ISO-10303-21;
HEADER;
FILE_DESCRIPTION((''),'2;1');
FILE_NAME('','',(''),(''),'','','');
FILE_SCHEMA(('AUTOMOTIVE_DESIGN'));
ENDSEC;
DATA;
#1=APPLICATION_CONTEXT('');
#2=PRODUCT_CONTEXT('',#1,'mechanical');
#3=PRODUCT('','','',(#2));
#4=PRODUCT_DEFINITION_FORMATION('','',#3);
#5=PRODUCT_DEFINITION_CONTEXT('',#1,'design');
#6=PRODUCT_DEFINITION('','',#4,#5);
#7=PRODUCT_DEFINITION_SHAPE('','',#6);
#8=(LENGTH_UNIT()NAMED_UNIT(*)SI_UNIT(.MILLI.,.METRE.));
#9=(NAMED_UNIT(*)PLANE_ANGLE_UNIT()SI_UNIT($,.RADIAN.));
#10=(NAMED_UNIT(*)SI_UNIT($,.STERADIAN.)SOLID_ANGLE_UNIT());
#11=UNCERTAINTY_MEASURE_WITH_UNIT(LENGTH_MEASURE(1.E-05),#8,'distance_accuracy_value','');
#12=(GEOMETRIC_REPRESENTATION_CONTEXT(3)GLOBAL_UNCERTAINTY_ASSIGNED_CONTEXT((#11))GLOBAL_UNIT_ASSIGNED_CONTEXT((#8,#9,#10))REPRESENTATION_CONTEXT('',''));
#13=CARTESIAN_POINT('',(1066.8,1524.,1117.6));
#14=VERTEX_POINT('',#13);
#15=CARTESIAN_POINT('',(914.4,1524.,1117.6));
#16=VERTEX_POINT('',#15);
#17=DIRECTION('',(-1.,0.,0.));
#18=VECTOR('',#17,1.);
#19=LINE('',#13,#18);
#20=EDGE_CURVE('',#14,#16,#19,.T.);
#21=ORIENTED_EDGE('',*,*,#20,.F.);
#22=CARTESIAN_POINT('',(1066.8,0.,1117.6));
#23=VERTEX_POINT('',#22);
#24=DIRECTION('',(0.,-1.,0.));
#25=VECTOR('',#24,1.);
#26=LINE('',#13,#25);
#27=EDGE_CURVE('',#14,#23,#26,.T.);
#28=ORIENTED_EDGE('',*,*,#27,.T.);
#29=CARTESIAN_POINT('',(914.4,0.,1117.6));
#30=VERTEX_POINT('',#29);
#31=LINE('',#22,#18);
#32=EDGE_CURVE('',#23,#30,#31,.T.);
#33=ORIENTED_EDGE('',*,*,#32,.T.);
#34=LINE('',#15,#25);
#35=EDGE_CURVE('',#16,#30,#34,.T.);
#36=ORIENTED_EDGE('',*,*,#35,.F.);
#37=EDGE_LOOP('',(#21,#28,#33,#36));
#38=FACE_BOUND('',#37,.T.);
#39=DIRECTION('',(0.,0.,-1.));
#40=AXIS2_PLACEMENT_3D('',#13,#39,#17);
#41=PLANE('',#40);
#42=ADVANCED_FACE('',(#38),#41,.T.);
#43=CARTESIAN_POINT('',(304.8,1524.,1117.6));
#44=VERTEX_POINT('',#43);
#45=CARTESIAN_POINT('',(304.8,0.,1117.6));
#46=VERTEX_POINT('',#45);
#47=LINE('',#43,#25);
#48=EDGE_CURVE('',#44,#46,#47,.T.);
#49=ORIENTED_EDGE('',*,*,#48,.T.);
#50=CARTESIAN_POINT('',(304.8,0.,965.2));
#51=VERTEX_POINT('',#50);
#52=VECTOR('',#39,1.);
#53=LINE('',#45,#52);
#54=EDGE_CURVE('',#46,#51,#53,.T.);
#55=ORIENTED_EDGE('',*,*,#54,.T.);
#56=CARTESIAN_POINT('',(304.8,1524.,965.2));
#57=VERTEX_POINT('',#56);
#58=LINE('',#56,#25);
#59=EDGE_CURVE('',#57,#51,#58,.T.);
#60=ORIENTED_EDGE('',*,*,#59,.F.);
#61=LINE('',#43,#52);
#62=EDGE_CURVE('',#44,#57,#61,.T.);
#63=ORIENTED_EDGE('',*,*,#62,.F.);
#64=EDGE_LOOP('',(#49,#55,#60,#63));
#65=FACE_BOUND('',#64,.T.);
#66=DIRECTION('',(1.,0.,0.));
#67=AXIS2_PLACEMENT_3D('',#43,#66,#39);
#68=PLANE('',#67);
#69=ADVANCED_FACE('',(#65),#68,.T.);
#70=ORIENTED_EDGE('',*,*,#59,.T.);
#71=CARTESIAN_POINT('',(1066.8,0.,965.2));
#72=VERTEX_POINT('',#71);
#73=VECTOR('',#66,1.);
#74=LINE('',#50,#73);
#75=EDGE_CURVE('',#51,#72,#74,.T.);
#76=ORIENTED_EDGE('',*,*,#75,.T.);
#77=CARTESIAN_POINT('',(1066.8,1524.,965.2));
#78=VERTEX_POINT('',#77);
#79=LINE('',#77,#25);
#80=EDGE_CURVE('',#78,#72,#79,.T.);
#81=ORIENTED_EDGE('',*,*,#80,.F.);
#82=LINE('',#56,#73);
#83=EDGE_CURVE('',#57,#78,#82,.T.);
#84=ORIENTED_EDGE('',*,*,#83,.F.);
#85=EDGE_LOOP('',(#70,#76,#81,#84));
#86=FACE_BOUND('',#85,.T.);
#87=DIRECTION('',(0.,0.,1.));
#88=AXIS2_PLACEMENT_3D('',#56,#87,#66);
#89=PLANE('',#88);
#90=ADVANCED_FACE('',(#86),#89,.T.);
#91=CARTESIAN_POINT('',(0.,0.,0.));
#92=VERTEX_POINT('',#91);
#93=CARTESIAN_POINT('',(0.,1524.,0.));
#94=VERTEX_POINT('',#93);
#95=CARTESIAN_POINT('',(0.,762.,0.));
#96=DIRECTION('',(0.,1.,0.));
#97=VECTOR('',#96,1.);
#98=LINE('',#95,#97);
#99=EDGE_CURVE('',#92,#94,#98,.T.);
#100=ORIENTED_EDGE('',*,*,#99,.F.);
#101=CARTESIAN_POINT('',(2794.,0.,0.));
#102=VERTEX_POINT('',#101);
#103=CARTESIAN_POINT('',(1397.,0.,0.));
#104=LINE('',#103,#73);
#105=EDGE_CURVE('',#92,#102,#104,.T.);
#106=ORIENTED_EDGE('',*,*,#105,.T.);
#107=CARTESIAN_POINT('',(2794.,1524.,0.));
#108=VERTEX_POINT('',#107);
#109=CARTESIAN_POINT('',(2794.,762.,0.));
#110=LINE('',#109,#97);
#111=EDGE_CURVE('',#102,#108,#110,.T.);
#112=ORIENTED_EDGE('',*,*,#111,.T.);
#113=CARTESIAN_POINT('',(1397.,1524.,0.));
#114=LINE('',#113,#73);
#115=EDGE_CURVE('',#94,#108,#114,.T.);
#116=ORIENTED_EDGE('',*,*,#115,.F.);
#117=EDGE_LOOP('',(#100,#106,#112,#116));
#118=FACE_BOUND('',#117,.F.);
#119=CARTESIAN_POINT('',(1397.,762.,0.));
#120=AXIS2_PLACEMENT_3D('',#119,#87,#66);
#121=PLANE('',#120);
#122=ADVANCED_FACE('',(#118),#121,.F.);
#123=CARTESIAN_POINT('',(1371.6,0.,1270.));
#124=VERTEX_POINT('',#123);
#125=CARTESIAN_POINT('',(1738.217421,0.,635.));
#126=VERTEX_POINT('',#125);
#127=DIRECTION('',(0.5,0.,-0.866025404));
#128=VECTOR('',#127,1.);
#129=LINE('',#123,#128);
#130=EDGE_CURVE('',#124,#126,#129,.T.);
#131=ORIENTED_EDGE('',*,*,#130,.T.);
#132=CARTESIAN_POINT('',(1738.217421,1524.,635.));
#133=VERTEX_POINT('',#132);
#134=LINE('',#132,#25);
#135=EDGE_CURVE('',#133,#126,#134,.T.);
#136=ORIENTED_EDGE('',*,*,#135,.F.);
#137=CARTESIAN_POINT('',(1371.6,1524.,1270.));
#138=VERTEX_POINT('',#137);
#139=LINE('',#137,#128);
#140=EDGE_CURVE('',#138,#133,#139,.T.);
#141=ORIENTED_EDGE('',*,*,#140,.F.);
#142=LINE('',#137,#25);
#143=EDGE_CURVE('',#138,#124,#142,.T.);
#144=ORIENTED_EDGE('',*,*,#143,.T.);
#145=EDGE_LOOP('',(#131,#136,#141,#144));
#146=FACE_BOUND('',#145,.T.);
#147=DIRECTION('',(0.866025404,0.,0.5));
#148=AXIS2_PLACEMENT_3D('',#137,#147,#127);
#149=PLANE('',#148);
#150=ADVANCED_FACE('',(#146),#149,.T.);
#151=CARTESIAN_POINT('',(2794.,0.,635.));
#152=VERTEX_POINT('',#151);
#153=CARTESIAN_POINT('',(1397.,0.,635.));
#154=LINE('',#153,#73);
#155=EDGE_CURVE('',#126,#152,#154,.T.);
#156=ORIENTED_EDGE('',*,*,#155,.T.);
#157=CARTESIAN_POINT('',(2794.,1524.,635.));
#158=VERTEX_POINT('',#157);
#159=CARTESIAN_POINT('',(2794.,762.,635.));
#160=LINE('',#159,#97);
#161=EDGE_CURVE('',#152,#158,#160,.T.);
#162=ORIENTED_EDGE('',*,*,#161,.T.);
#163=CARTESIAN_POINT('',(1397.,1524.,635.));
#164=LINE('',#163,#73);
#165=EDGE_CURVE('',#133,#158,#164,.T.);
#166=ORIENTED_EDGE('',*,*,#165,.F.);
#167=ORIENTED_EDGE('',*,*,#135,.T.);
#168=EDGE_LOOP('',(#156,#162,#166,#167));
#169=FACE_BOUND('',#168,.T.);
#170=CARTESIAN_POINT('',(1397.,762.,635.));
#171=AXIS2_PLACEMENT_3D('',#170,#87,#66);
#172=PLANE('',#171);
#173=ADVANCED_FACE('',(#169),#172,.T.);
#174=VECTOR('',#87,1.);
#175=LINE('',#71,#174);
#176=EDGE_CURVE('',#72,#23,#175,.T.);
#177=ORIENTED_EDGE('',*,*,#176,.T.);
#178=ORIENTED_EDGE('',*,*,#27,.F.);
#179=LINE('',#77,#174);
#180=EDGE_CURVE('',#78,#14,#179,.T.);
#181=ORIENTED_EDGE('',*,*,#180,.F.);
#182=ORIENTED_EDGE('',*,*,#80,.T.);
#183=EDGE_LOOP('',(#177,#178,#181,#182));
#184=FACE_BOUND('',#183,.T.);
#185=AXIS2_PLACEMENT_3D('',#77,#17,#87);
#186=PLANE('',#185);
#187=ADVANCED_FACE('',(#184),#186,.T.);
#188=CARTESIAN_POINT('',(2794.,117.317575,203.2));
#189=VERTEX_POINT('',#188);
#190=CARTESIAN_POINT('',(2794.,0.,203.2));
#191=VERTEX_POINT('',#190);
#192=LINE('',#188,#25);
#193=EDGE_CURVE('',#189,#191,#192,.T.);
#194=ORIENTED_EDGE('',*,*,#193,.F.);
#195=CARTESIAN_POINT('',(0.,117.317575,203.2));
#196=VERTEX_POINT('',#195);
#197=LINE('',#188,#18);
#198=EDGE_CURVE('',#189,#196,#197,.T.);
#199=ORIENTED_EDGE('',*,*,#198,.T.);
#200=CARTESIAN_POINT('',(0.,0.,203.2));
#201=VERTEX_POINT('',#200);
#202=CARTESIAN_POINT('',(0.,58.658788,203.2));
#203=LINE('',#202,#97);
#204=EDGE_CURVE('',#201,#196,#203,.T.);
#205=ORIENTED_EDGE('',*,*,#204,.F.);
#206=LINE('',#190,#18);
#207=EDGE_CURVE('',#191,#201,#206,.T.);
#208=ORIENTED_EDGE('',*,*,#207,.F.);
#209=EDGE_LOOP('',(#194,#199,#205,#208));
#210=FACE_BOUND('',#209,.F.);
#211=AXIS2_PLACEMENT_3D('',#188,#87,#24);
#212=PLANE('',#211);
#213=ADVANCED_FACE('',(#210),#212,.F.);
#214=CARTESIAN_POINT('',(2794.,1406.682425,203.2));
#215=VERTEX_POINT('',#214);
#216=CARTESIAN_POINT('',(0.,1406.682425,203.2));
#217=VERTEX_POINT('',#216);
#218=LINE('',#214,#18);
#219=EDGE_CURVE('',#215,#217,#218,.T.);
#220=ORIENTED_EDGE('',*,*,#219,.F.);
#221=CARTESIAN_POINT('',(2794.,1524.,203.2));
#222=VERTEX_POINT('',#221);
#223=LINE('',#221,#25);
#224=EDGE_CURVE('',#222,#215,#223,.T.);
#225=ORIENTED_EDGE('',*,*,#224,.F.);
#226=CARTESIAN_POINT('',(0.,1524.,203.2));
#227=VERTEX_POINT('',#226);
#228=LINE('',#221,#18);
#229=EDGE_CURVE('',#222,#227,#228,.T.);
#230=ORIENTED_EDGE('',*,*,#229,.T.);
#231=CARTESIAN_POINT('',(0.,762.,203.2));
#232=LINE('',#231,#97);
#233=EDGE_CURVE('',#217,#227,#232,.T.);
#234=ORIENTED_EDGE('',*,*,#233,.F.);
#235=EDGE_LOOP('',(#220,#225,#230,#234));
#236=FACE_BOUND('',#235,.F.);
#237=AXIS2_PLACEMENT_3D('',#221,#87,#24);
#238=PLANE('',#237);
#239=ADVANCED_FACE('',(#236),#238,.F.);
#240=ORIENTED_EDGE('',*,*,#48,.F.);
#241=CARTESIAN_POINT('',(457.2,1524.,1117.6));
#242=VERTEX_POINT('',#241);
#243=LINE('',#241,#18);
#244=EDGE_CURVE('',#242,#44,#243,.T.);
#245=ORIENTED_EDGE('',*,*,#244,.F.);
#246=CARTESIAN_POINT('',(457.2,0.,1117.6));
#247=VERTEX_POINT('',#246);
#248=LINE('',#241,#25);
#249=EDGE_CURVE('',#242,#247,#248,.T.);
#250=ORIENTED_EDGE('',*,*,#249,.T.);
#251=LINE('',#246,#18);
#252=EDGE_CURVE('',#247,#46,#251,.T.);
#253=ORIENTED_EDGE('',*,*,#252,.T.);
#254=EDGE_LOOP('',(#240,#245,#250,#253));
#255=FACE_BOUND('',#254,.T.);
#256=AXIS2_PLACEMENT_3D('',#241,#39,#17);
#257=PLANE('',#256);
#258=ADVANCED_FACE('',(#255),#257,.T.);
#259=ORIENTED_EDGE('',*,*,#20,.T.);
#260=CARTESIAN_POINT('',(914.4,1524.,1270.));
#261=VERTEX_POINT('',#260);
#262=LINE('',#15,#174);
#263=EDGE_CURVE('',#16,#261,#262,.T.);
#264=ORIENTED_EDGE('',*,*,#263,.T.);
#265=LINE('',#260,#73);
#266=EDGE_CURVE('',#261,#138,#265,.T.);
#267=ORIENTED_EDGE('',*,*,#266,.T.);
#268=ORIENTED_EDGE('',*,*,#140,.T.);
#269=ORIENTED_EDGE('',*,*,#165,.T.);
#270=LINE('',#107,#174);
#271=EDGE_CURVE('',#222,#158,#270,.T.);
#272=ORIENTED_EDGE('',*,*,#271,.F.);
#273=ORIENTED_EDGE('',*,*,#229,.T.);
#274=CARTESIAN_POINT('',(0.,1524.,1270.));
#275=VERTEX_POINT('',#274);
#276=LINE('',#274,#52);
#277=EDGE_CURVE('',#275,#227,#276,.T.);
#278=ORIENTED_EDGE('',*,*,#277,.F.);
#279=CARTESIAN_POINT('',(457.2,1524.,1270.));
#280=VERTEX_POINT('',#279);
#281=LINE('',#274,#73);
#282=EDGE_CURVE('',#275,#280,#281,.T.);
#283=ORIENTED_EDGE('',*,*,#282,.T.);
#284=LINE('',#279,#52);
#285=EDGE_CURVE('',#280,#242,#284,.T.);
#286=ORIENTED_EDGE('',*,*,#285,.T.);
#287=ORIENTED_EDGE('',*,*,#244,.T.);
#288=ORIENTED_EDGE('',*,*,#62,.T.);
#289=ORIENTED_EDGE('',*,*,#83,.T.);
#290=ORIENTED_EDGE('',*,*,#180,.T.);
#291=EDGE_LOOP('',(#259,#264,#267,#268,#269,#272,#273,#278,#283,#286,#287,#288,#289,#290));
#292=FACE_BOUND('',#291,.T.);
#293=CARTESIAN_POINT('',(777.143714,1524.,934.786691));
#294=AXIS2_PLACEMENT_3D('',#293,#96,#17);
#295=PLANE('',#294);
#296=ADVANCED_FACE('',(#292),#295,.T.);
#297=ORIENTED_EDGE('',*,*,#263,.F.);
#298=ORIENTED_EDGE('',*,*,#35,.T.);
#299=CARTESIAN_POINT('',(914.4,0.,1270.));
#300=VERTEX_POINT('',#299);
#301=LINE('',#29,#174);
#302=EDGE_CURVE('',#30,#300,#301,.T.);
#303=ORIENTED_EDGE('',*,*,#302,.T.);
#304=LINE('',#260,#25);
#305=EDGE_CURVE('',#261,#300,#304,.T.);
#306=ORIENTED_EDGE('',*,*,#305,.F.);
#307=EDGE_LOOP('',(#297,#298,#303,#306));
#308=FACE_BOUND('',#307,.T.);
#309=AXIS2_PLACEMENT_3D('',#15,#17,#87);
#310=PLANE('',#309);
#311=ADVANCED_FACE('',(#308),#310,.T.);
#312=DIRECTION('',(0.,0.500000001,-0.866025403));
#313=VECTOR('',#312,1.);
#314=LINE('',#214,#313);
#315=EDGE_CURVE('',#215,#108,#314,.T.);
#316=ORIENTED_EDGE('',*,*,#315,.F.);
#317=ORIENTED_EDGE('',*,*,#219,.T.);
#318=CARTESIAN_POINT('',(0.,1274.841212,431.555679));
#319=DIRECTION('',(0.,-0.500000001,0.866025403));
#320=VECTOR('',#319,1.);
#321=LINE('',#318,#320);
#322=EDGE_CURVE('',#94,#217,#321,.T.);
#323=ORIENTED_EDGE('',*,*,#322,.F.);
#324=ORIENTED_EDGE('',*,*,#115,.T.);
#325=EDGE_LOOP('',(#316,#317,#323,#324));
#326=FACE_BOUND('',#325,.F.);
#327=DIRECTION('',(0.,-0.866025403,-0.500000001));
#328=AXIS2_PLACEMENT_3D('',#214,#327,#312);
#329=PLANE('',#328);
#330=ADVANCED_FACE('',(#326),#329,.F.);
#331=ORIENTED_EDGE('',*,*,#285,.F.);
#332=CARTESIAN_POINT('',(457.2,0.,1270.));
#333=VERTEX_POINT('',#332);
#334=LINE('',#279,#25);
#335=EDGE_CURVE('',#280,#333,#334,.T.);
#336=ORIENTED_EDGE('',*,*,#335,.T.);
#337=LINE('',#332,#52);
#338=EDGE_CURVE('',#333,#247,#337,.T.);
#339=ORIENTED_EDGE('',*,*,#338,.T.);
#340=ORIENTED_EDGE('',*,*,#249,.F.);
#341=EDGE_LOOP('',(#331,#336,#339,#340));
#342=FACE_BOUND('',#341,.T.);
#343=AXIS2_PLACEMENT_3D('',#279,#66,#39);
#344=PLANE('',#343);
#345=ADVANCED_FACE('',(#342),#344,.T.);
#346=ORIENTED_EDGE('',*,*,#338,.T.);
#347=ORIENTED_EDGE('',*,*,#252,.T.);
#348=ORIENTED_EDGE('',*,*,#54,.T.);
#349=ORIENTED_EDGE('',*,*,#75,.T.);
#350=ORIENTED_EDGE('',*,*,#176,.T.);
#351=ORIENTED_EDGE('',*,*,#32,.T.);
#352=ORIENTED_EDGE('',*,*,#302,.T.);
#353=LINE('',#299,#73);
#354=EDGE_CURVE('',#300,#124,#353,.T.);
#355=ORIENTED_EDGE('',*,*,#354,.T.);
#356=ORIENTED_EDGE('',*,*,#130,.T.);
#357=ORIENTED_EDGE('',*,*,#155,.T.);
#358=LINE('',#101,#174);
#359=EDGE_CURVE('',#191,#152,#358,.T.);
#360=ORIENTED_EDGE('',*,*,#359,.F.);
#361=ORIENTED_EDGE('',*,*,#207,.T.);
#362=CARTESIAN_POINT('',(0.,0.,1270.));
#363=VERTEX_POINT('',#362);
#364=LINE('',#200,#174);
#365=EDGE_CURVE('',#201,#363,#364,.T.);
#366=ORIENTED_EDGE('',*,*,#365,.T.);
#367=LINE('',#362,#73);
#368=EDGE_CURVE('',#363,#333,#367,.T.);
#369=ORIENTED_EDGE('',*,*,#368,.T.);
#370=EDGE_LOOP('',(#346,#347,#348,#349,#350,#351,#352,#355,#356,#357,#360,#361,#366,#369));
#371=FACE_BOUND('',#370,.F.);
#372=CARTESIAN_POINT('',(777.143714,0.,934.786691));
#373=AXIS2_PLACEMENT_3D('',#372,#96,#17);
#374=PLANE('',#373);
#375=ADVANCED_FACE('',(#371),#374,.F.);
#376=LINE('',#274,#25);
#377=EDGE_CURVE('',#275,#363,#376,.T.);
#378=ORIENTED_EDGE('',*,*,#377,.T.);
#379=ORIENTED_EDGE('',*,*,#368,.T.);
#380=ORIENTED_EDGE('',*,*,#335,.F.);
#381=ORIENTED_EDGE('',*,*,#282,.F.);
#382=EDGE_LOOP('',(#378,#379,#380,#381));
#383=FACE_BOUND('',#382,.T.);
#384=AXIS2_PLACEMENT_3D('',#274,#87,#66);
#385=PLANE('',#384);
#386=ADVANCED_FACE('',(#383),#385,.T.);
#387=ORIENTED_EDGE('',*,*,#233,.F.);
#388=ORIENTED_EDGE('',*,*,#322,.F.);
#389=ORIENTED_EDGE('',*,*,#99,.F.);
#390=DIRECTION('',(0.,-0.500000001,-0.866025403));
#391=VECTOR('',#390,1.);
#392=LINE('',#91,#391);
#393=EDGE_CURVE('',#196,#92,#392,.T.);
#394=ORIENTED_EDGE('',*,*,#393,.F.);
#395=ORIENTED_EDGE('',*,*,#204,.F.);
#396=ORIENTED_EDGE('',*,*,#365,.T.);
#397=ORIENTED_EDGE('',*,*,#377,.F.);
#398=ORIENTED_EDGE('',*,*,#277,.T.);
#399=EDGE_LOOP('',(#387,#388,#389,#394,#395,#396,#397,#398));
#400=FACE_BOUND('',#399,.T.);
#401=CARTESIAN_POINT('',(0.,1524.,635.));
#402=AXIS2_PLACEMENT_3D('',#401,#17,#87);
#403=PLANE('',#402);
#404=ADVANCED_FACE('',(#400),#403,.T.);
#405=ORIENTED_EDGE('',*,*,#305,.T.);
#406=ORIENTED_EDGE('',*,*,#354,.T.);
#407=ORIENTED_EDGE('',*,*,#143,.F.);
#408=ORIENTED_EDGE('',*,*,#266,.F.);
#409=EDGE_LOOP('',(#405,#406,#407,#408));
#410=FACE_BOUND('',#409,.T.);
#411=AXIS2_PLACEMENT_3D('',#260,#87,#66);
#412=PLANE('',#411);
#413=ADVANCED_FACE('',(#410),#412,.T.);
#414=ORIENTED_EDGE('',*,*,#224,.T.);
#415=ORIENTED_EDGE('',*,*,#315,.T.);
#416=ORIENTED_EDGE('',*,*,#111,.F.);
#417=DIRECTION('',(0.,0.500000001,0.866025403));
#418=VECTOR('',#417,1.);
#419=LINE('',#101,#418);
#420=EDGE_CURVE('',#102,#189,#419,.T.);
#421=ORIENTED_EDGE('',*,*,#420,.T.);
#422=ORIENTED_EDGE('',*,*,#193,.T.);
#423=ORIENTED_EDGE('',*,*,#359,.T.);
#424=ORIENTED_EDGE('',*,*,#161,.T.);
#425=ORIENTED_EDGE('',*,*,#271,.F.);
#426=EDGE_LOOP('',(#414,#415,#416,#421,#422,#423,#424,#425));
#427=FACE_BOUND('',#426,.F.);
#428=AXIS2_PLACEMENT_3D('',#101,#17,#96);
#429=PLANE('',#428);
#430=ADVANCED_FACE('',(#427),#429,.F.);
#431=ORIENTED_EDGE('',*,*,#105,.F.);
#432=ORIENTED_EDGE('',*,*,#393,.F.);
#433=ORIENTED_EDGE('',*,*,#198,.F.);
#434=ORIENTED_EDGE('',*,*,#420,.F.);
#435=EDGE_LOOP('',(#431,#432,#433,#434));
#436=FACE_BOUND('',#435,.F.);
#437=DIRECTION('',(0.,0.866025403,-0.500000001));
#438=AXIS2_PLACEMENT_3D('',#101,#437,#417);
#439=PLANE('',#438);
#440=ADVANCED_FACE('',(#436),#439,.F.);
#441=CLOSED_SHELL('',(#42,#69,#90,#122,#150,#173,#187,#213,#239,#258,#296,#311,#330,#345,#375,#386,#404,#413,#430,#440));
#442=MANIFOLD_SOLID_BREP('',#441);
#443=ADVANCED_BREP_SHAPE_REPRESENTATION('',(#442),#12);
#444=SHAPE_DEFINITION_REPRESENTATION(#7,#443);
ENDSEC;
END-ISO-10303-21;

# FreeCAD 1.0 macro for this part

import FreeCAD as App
import Part
import Sketcher
from FreeCAD import Vector
Q = App.Units.Quantity


def add_polygon(sketch, points):
    """Adds a closed chain of lines whose ends are joined by coincident constraints."""
    first, n = sketch.GeometryCount, len(points)
    for a, b in zip(points, points[1:] + points[:1]):
        sketch.addGeometry(Part.LineSegment(App.Vector(*a, 0), App.Vector(*b, 0)), False)
    for i in range(n):
        sketch.addConstraint(Sketcher.Constraint("Coincident", first + i, 2, first + (i + 1) % n, 1))

doc = App.newDocument("Part")
body = doc.addObject("PartDesign::Body", "Body")

# Sketch on XY plane
sketch1 = doc.addObject("Sketcher::SketchObject", "Sketch")
body.addObject(sketch1)
sketch1.AttachmentSupport = (doc.XY_Plane, [""])
sketch1.MapMode = "FlatFace"
add_polygon(sketch1, [(0, 1524), (0, 0), (2794, 0), (2794, 1524)])  # lines 0-3
sketch1.addConstraint(Sketcher.Constraint("Vertical", 0))
sketch1.addConstraint(Sketcher.Constraint("Horizontal", 1))
sketch1.addConstraint(Sketcher.Constraint("Vertical", 2))
sketch1.addConstraint(Sketcher.Constraint("Horizontal", 3))
sketch1.addConstraint(Sketcher.Constraint("Coincident", 0, 2, -1, 1))
sketch1.addConstraint(Sketcher.Constraint("DistanceX", 1, 1, 1, 2, Q("110 in")))
sketch1.addConstraint(Sketcher.Constraint("DistanceY", 0, 2, 0, 1, Q("60 in")))
pad1 = doc.addObject("PartDesign::Pad", "Pad")
body.addObject(pad1)
pad1.Profile = sketch1
pad1.Length = Q("25 in")

# Sketch on YZ plane
sketch2 = doc.addObject("Sketcher::SketchObject", "Sketch001")
body.addObject(sketch2)
sketch2.AttachmentSupport = (doc.YZ_Plane, [""])
sketch2.MapMode = "FlatFace"
sketch2.AttachmentOffset = App.Placement(Vector(0, 0, 110 * 25.4), App.Rotation())
add_polygon(sketch2, [(0, 203), (0, 0), (117, 203)])  # lines 0-2
sketch2.addConstraint(Sketcher.Constraint("Vertical", 0))
sketch2.addConstraint(Sketcher.Constraint("Horizontal", 2))
sketch2.addConstraint(Sketcher.Constraint("Coincident", 0, 2, -1, 1))
sketch2.addConstraint(Sketcher.Constraint("DistanceY", 0, 2, 0, 1, Q("8 in")))
sketch2.addConstraint(Sketcher.Constraint("Angle", 1, Q("60 deg")))
pocket1 = doc.addObject("PartDesign::Pocket", "Pocket")
body.addObject(pocket1)
pocket1.Profile = sketch2
pocket1.Type = "ThroughAll"

# Sketch on YZ plane
sketch3 = doc.addObject("Sketcher::SketchObject", "Sketch002")
body.addObject(sketch3)
sketch3.AttachmentSupport = (doc.YZ_Plane, [""])
sketch3.MapMode = "FlatFace"
sketch3.AttachmentOffset = App.Placement(Vector(0, 0, 110 * 25.4), App.Rotation())
add_polygon(sketch3, [(1407, 203), (1524, 0), (1524, 203)])  # lines 0-2
sketch3.addConstraint(Sketcher.Constraint("Vertical", 1))
sketch3.addConstraint(Sketcher.Constraint("Horizontal", 2))
sketch3.addConstraint(Sketcher.Constraint("PointOnObject", 0, 2, -1))
sketch3.addConstraint(Sketcher.Constraint("DistanceY", 1, 1, 1, 2, Q("8 in")))
sketch3.addConstraint(Sketcher.Constraint("DistanceX", -1, 1, 0, 2, Q("60 in")))
sketch3.addConstraint(Sketcher.Constraint("Angle", 0, Q("-60 deg")))
pocket2 = doc.addObject("PartDesign::Pocket", "Pocket001")
body.addObject(pocket2)
pocket2.Profile = sketch3
pocket2.Type = "ThroughAll"

# Sketch on XZ plane
sketch4 = doc.addObject("Sketcher::SketchObject", "Sketch003")
body.addObject(sketch4)
sketch4.AttachmentSupport = (doc.XZ_Plane, [""])
sketch4.MapMode = "FlatFace"
sketch4.AttachmentOffset = App.Placement(Vector(0, 0, -60 * 25.4), App.Rotation())
add_polygon(sketch4, [(1738, 635), (0, 635), (0, 1270), (457, 1270), (457, 1118), (305, 1118), (305, 965), (1067, 965), (1067, 1118), (914, 1118), (914, 1270), (1372, 1270)])  # lines 0-11
sketch4.addConstraint(Sketcher.Constraint("Horizontal", 0))
sketch4.addConstraint(Sketcher.Constraint("Vertical", 1))
sketch4.addConstraint(Sketcher.Constraint("Horizontal", 2))
sketch4.addConstraint(Sketcher.Constraint("Vertical", 3))
sketch4.addConstraint(Sketcher.Constraint("Horizontal", 4))
sketch4.addConstraint(Sketcher.Constraint("Vertical", 5))
sketch4.addConstraint(Sketcher.Constraint("Horizontal", 6))
sketch4.addConstraint(Sketcher.Constraint("Vertical", 7))
sketch4.addConstraint(Sketcher.Constraint("Horizontal", 8))
sketch4.addConstraint(Sketcher.Constraint("Vertical", 9))
sketch4.addConstraint(Sketcher.Constraint("Horizontal", 10))
sketch4.addConstraint(Sketcher.Constraint("PointOnObject", 0, 2, -2))
sketch4.addConstraint(Sketcher.Constraint("Horizontal", 4, 2, 7, 2))
sketch4.addConstraint(Sketcher.Constraint("Horizontal", 2, 2, 9, 2))
sketch4.addConstraint(Sketcher.Constraint("Equal", 4, 8))
sketch4.addConstraint(Sketcher.Constraint("Equal", 2, 10))
sketch4.addConstraint(Sketcher.Constraint("Equal", 8, 3))
sketch4.addConstraint(Sketcher.Constraint("Equal", 3, 5))
sketch4.addConstraint(Sketcher.Constraint("DistanceX", 2, 1, 2, 2, Q("18 in")))
sketch4.addConstraint(Sketcher.Constraint("DistanceX", 4, 2, 4, 1, Q("6 in")))
sketch4.addConstraint(Sketcher.Constraint("DistanceX", 6, 1, 6, 2, Q("30 in")))
sketch4.addConstraint(Sketcher.Constraint("DistanceY", 1, 1, 1, 2, Q("25 in")))
sketch4.addConstraint(Sketcher.Constraint("DistanceY", -1, 1, 0, 2, Q("25 in")))
sketch4.addConstraint(Sketcher.Constraint("Angle", 11, Q("-60 deg")))
pad2 = doc.addObject("PartDesign::Pad", "Pad001")
body.addObject(pad2)
pad2.Profile = sketch4
pad2.Length = Q("60 in")

doc.recompute()
